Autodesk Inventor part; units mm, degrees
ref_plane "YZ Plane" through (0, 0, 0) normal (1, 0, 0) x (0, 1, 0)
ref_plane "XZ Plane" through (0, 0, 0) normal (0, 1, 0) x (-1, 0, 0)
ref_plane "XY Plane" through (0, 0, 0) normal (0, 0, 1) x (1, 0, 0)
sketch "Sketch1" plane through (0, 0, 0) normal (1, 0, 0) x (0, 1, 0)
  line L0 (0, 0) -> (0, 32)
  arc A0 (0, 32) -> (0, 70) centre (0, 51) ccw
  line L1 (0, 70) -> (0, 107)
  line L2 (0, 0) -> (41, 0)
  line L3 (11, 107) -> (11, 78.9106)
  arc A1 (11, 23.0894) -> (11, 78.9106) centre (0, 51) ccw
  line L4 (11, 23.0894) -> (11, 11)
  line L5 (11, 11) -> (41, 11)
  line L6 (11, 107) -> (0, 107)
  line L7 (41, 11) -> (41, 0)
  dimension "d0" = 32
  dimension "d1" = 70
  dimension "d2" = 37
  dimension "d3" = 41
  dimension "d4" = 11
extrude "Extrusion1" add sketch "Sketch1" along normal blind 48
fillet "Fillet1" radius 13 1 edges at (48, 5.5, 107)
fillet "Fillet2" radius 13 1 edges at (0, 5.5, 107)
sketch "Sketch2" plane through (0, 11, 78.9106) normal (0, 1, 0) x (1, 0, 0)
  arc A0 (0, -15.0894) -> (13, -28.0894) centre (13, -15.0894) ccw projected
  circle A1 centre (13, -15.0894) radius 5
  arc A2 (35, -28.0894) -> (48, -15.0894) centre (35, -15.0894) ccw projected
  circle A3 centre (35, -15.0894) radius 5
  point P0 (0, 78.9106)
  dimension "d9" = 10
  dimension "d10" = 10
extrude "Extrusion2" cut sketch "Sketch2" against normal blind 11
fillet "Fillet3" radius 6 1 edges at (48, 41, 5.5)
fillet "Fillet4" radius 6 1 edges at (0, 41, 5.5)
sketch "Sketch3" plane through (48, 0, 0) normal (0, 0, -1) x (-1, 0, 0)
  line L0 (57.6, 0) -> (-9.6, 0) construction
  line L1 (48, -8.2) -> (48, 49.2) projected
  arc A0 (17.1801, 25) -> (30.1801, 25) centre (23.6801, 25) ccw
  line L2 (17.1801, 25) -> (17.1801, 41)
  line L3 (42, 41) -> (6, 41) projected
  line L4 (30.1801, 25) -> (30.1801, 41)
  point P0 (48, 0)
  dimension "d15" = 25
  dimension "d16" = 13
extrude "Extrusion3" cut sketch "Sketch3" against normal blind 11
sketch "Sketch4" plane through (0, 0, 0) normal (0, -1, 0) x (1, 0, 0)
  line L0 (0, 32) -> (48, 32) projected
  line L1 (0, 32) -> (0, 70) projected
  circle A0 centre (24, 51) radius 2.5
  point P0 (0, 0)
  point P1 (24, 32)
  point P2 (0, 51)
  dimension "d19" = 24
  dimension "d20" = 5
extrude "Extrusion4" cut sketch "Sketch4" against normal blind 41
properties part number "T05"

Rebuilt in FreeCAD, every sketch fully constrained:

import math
import FreeCAD as App
import Part
import Sketcher

V = App.Vector


def edges_at(feature, points):
    """Names of the edges that pass closest to the given points."""
    edges = feature.Shape.Edges
    near = lambda p: min(range(len(edges)), key=lambda i: edges[i].distToShape(Part.Vertex(*p))[0])
    return sorted({f"Edge{near(p) + 1}" for p in points})

doc = App.newDocument("Part")
body = doc.addObject("PartDesign::Body", "Body")

# Sketch on YZ plane
sketch1 = doc.addObject("Sketcher::SketchObject", "Sketch")
body.addObject(sketch1)
sketch1.AttachmentSupport = (doc.YZ_Plane, [""])
sketch1.MapMode = "FlatFace"
sketch1.addGeometry([
    Part.LineSegment(V(0, 32, 0), V(0, 0, 0)),  # 0
    Part.LineSegment(V(0, 0, 0), V(41, 0, 0)),  # 1
    Part.LineSegment(V(41, 0, 0), V(41, 11, 0)),  # 2
    Part.LineSegment(V(41, 11, 0), V(11, 11, 0)),  # 3
    Part.LineSegment(V(11, 11, 0), V(11, 23, 0)),  # 4
    Part.ArcOfCircle(Part.Circle(V(0, 51, 0), V(0, 0, 1), 30), math.radians(-68), math.radians(68)),  # 5
    Part.LineSegment(V(11, 79, 0), V(11, 107, 0)),  # 6
    Part.LineSegment(V(11, 107, 0), V(0, 107, 0)),  # 7
    Part.LineSegment(V(0, 107, 0), V(0, 70, 0)),  # 8
    Part.ArcOfCircle(Part.Circle(V(0, 51, 0), V(0, 0, 1), 19), math.radians(-90), math.radians(90)),  # 9
], False)
sketch1.addConstraint([
    Sketcher.Constraint("Coincident", 0, 2, 1, 1),
    Sketcher.Constraint("Coincident", 1, 2, 2, 1),
    Sketcher.Constraint("Coincident", 2, 2, 3, 1),
    Sketcher.Constraint("Coincident", 3, 2, 4, 1),
    Sketcher.Constraint("Coincident", 4, 2, 5, 1),
    Sketcher.Constraint("Coincident", 5, 2, 6, 1),
    Sketcher.Constraint("Coincident", 6, 2, 7, 1),
    Sketcher.Constraint("Coincident", 7, 2, 8, 1),
    Sketcher.Constraint("Coincident", 8, 2, 9, 2),
    Sketcher.Constraint("Coincident", 9, 1, 0, 1),
    Sketcher.Constraint("Vertical", 0),
    Sketcher.Constraint("Horizontal", 1),
    Sketcher.Constraint("Vertical", 2),
    Sketcher.Constraint("Horizontal", 3),
    Sketcher.Constraint("Vertical", 4),
    Sketcher.Constraint("Vertical", 6),
    Sketcher.Constraint("Horizontal", 7),
    Sketcher.Constraint("Vertical", 8),
    Sketcher.Constraint("Coincident", 0, 2, -1, 1),
    Sketcher.Constraint("Coincident", 9, 3, 5, 3),
    Sketcher.Constraint("PointOnObject", 5, 3, -2),
    Sketcher.Constraint("PointOnObject", 7, 2, -2),
    Sketcher.Constraint("Vertical", 4, 2, 5, 2),
    Sketcher.Constraint("Equal", 7, 2),
    Sketcher.Constraint("DistanceX", 1, 1, 1, 2, 41.0),
    Sketcher.Constraint("DistanceX", 7, 2, 7, 1, 11.0),
    Sketcher.Constraint("DistanceY", 0, 2, 0, 1, 32.0),
    Sketcher.Constraint("DistanceY", 8, 2, 8, 1, 37.0),
    Sketcher.Constraint("DistanceY", -1, 1, 8, 2, 70.0),
    Sketcher.Constraint("Radius", 5, 30.0),
])
pad1 = doc.addObject("PartDesign::Pad", "Pad")
body.addObject(pad1)
pad1.Profile = sketch1
pad1.Length = 48
doc.recompute()

fillet = doc.addObject("PartDesign::Fillet", "Fillet")
body.addObject(fillet)
fillet.Base = (pad1, edges_at(pad1, [(48, 5.5, 107)]))
fillet.Radius = 13
doc.recompute()

fillet2 = doc.addObject("PartDesign::Fillet", "Fillet001")
body.addObject(fillet2)
fillet2.Base = (fillet, edges_at(fillet, [(0, 5.5, 107)]))
fillet2.Radius = 13

# Sketch on XZ plane
sketch2 = doc.addObject("Sketcher::SketchObject", "Sketch001")
body.addObject(sketch2)
sketch2.AttachmentSupport = (doc.XZ_Plane, [""])
sketch2.MapMode = "FlatFace"
sketch2.AttachmentOffset = App.Placement(V(0, 0, -11), App.Rotation())
sketch2.addGeometry([
    Part.Circle(V(13, 94, 0), V(0, 0, 1), 5),
    Part.Circle(V(35, 94, 0), V(0, 0, 1), 5),
], False)
sketch2.addConstraint([
    Sketcher.Constraint("Equal", 0, 1),
    Sketcher.Constraint("Horizontal", 0, 3, 1, 3),
    Sketcher.Constraint("Diameter", 0, 10.0),
    Sketcher.Constraint("DistanceX", -1, 1, 0, 3, 13.0),
    Sketcher.Constraint("DistanceY", -1, 1, 0, 3, 94.0),
    Sketcher.Constraint("DistanceX", -1, 1, 1, 3, 35.0),
])
pocket1 = doc.addObject("PartDesign::Pocket", "Pocket")
body.addObject(pocket1)
pocket1.Profile = sketch2
pocket1.Length = 11
pocket1.Reversed = True
doc.recompute()

fillet3 = doc.addObject("PartDesign::Fillet", "Fillet002")
body.addObject(fillet3)
fillet3.Base = (pocket1, edges_at(pocket1, [(48, 41, 5.5)]))
fillet3.Radius = 6
doc.recompute()

fillet4 = doc.addObject("PartDesign::Fillet", "Fillet003")
body.addObject(fillet4)
fillet4.Base = (fillet3, edges_at(fillet3, [(0, 41, 5.5)]))
fillet4.Radius = 6

# Sketch on XY plane
sketch3 = doc.addObject("Sketcher::SketchObject", "Sketch002")
body.addObject(sketch3)
sketch3.AttachmentSupport = (doc.XY_Plane, [""])
sketch3.MapMode = "FlatFace"
sketch3.addGeometry([
    Part.LineSegment(V(31, 41, 0), V(31, 25, 0)),
    Part.ArcOfCircle(Part.Circle(V(24, 25, 0), V(0, 0, 1), 6), math.radians(180), math.radians(360)),
    Part.LineSegment(V(18, 25, 0), V(18, 41, 0)),
    Part.LineSegment(V(18, 41, 0), V(31, 41, 0)),
], False)
sketch3.addConstraint([
    Sketcher.Constraint("Tangent", 0, 2, 1, 2),
    Sketcher.Constraint("Tangent", 1, 1, 2, 1),
    Sketcher.Constraint("Coincident", 2, 2, 3, 1),
    Sketcher.Constraint("Coincident", 3, 2, 0, 1),
    Sketcher.Constraint("Vertical", 0),
    Sketcher.Constraint("Vertical", 2),
    Sketcher.Constraint("Horizontal", 3),
    Sketcher.Constraint("Radius", 1, 6.5),
    Sketcher.Constraint("DistanceY", -1, 1, 1, 3, 25.0),
    Sketcher.Constraint("DistanceY", 0, 2, 0, 1, 16.0),
    Sketcher.Constraint("DistanceX", -1, 1, 1, 3, 24.32),
])
pocket2 = doc.addObject("PartDesign::Pocket", "Pocket001")
body.addObject(pocket2)
pocket2.Profile = sketch3
pocket2.Length = 11
pocket2.Reversed = True

# Sketch on XZ plane
sketch4 = doc.addObject("Sketcher::SketchObject", "Sketch003")
body.addObject(sketch4)
sketch4.AttachmentSupport = (doc.XZ_Plane, [""])
sketch4.MapMode = "FlatFace"
sketch4.addGeometry(Part.Circle(V(24, 51, 0), V(0, 0, 1), 2.5), False)
sketch4.addConstraint([
    Sketcher.Constraint("Diameter", 0, 5.0),
    Sketcher.Constraint("DistanceX", -1, 1, 0, 3, 24.0),
    Sketcher.Constraint("DistanceY", -1, 1, 0, 3, 51.0),
])
pocket3 = doc.addObject("PartDesign::Pocket", "Pocket002")
body.addObject(pocket3)
pocket3.Profile = sketch4
pocket3.Length = 41

doc.recompute()
